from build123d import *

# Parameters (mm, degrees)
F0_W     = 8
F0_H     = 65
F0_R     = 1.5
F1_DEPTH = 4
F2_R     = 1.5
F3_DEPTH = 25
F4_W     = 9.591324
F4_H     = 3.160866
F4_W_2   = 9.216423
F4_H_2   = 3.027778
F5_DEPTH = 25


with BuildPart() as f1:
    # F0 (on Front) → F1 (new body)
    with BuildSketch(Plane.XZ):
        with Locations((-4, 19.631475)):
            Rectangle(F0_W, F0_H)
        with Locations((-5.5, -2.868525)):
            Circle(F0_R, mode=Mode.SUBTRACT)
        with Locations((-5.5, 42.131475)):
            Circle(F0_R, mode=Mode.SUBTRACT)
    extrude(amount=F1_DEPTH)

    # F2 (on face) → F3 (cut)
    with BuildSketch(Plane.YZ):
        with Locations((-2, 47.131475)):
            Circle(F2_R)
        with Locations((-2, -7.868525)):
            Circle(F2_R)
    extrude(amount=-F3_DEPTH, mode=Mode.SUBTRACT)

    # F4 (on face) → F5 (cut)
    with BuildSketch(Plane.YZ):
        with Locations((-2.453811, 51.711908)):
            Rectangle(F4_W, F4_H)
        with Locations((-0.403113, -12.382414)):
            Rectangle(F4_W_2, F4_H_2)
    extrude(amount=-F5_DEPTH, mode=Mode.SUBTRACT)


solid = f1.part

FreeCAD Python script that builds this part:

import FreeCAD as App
import Part
import Sketcher
Q = App.Units.Quantity


def add_polygon(sketch, points):
    """Adds a closed chain of lines whose ends are joined by coincident constraints."""
    first, n = sketch.GeometryCount, len(points)
    for a, b in zip(points, points[1:] + points[:1]):
        sketch.addGeometry(Part.LineSegment(App.Vector(*a, 0), App.Vector(*b, 0)), False)
    for i in range(n):
        sketch.addConstraint(Sketcher.Constraint("Coincident", first + i, 2, first + (i + 1) % n, 1))

doc = App.newDocument("Part")
body = doc.addObject("PartDesign::Body", "Body")

sketch1 = doc.addObject("Sketcher::SketchObject", "Sketch")
body.addObject(sketch1)
sketch1.AttachmentSupport = (doc.XZ_Plane, [""])
sketch1.MapMode = "FlatFace"
add_polygon(sketch1, [(-8, 52.1), (-8, -12.9), (0, -12.9), (0, 52.1)])
sketch1.addGeometry(Part.Circle(App.Vector(-5.5, -2.9, 0), App.Vector(0, 0, 1), 1.5), False)
sketch1.addGeometry(Part.Circle(App.Vector(-5.5, 42.1, 0), App.Vector(0, 0, 1), 1.5), False)
sketch1.addConstraint([
    Sketcher.Constraint("Vertical", 0),
    Sketcher.Constraint("Horizontal", 1),
    Sketcher.Constraint("Vertical", 2),
    Sketcher.Constraint("Horizontal", 3),
    Sketcher.Constraint("Equal", 4, 5),
    Sketcher.Constraint("PointOnObject", 1, 2, -2),
    Sketcher.Constraint("Vertical", 4, 3, 5, 3),
    Sketcher.Constraint("Diameter", 4, Q("3 mm")),
    Sketcher.Constraint("DistanceX", 1, 1, 1, 2, Q("8 mm")),
    Sketcher.Constraint("DistanceY", 0, 2, 0, 1, Q("65 mm")),
    Sketcher.Constraint("DistanceY", 4, 3, 5, 3, Q("45 mm")),
    Sketcher.Constraint("DistanceY", 0, 2, 4, 3, Q("10 mm")),
    Sketcher.Constraint("DistanceX", 4, 3, -1, 1, Q("5.5 mm")),
    Sketcher.Constraint("DistanceY", 4, 3, -1, 1, Q("2.868525 mm")),
])
pad1 = doc.addObject("PartDesign::Pad", "Pad")
body.addObject(pad1)
pad1.Profile = sketch1
pad1.Length = 4

sketch2 = doc.addObject("Sketcher::SketchObject", "Sketch001")
body.addObject(sketch2)
sketch2.AttachmentSupport = (doc.YZ_Plane, [""])
sketch2.MapMode = "FlatFace"
sketch2.addGeometry([
    Part.Circle(App.Vector(-2, 47.1, 0), App.Vector(0, 0, 1), 1.5),
    Part.Circle(App.Vector(-2, -7.9, 0), App.Vector(0, 0, 1), 1.5),
], False)
sketch2.addConstraint([
    Sketcher.Constraint("Equal", 0, 1),
    Sketcher.Constraint("Vertical", 0, 3, 1, 3),
    Sketcher.Constraint("Diameter", 0, Q("3 mm")),
    Sketcher.Constraint("DistanceX", 0, 3, -1, 1, Q("2 mm")),
    Sketcher.Constraint("DistanceY", 1, 3, 0, 3, Q("55 mm")),
    Sketcher.Constraint("DistanceY", -1, 1, 0, 3, Q("47.131475 mm")),
])
pocket1 = doc.addObject("PartDesign::Pocket", "Pocket")
body.addObject(pocket1)
pocket1.Profile = sketch2
pocket1.Length = 25

sketch3 = doc.addObject("Sketcher::SketchObject", "Sketch002")
body.addObject(sketch3)
sketch3.AttachmentSupport = (doc.YZ_Plane, [""])
sketch3.MapMode = "FlatFace"
add_polygon(sketch3, [(-7.2, 53.3), (-7.2, 50.1), (2.3, 50.1), (2.3, 53.3)])
add_polygon(sketch3, [(-5, -10.9), (-5, -13.9), (4.2, -13.9), (4.2, -10.9)])
sketch3.addConstraint([
    Sketcher.Constraint("Vertical", 0),
    Sketcher.Constraint("Horizontal", 1),
    Sketcher.Constraint("Vertical", 2),
    Sketcher.Constraint("Horizontal", 3),
    Sketcher.Constraint("Vertical", 4),
    Sketcher.Constraint("Horizontal", 5),
    Sketcher.Constraint("Vertical", 6),
    Sketcher.Constraint("Horizontal", 7),
    Sketcher.Constraint("DistanceY", 6, 2, 1, 2, Q("61 mm")),
    Sketcher.Constraint("DistanceX", -1, 1, 5, 2, Q("4.205099 mm")),
    Sketcher.Constraint("DistanceX", 1, 1, 1, 2, Q("9.591324 mm")),
    Sketcher.Constraint("DistanceX", 5, 1, 5, 2, Q("9.216423 mm")),
    Sketcher.Constraint("DistanceY", 0, 2, 0, 1, Q("3.160866 mm")),
    Sketcher.Constraint("DistanceY", 4, 2, 4, 1, Q("3.027778 mm")),
    Sketcher.Constraint("DistanceX", -1, 1, 1, 2, Q("2.341851 mm")),
    Sketcher.Constraint("DistanceY", -1, 1, 2, 2, Q("53.292341 mm")),
])
pocket2 = doc.addObject("PartDesign::Pocket", "Pocket001")
body.addObject(pocket2)
pocket2.Profile = sketch3
pocket2.Length = 25

doc.recompute()
